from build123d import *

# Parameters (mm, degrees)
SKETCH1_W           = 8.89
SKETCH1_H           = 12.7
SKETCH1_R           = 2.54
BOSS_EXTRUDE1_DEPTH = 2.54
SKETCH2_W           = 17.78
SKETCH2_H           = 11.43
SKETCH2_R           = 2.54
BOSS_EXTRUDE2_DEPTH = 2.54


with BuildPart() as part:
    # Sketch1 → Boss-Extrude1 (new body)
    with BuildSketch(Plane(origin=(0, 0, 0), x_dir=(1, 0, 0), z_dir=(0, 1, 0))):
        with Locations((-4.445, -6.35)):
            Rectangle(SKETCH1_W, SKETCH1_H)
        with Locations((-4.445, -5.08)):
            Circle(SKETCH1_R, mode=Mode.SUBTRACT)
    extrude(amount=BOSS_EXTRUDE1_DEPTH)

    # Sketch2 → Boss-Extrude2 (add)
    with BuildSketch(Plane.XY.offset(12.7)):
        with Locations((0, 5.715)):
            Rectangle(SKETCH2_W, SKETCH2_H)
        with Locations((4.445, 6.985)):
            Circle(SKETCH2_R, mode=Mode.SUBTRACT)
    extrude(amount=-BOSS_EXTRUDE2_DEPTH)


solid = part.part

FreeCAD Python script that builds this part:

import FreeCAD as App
import Part
import Sketcher
Q = App.Units.Quantity


def add_polygon(sketch, points):
    """Adds a closed chain of lines whose ends are joined by coincident constraints."""
    first, n = sketch.GeometryCount, len(points)
    for a, b in zip(points, points[1:] + points[:1]):
        sketch.addGeometry(Part.LineSegment(App.Vector(*a, 0), App.Vector(*b, 0)), False)
    for i in range(n):
        sketch.addConstraint(Sketcher.Constraint("Coincident", first + i, 2, first + (i + 1) % n, 1))

doc = App.newDocument("Part")
body = doc.addObject("PartDesign::Body", "Body")

# Sketch on XZ plane
sketch1 = body.newObject("Sketcher::SketchObject", "Sketch")
sketch1.AttachmentSupport = (doc.getObject("XZ_Plane"), [""])
sketch1.MapMode = "FlatFace"
add_polygon(sketch1, [(-8.9, 0), (-8.9, 12.7), (0, 12.7), (0, 0)])  # lines 0-3
sketch1.addGeometry(Part.Circle(App.Vector(-4.4, 5.1, 0), App.Vector(0, 0, 1), 2.5), False)  # 4
sketch1.addConstraint([
    Sketcher.Constraint("Vertical", 0),
    Sketcher.Constraint("Horizontal", 1),
    Sketcher.Constraint("Vertical", 2),
    Sketcher.Constraint("Horizontal", 3),
    Sketcher.Constraint("Coincident", 2, 2, -1, 1),
    Sketcher.Constraint("Diameter", 4, Q("0.2 in")),
    Sketcher.Constraint("DistanceY", 0, 1, 0, 2, Q("0.5 in")),
    Sketcher.Constraint("DistanceX", 1, 1, 1, 2, Q("0.35 in")),
    Sketcher.Constraint("DistanceY", -1, 1, 4, 3, Q("0.2 in")),
    Sketcher.Constraint("DistanceX", 4, 3, -1, 1, Q("0.175 in")),
])
pad1 = body.newObject("PartDesign::Pad", "Pad")
pad1.Profile = sketch1
pad1.Length = Q("0.1 in")
pad1.Reversed = True

# Sketch on XY plane
sketch2 = body.newObject("Sketcher::SketchObject", "Sketch001")
sketch2.AttachmentSupport = (doc.getObject("XY_Plane"), [""])
sketch2.MapMode = "FlatFace"
sketch2.AttachmentOffset = App.Placement(App.Vector(0, 0, 0.5 * 25.4), App.Rotation())
add_polygon(sketch2, [(-8.9, 11.4), (-8.9, 0), (8.9, 0), (8.9, 11.4)])  # lines 0-3
sketch2.addGeometry(Part.Circle(App.Vector(4.4, 7, 0), App.Vector(0, 0, 1), 2.5), False)  # 4
sketch2.addConstraint([
    Sketcher.Constraint("Vertical", 0),
    Sketcher.Constraint("Horizontal", 1),
    Sketcher.Constraint("Vertical", 2),
    Sketcher.Constraint("Horizontal", 3),
    Sketcher.Constraint("Symmetric", 0, 2, 1, 2, -1, 1),
    Sketcher.Constraint("Diameter", 4, Q("0.2 in")),
    Sketcher.Constraint("DistanceX", 1, 1, 1, 2, Q("0.7 in")),
    Sketcher.Constraint("DistanceY", 0, 2, 0, 1, Q("0.45 in")),
    Sketcher.Constraint("DistanceX", -1, 1, 4, 3, Q("0.175 in")),
    Sketcher.Constraint("DistanceY", -1, 1, 4, 3, Q("0.275 in")),
])
pad2 = body.newObject("PartDesign::Pad", "Pad001")
pad2.Profile = sketch2
pad2.Length = Q("0.1 in")
pad2.Reversed = True

doc.recompute()
